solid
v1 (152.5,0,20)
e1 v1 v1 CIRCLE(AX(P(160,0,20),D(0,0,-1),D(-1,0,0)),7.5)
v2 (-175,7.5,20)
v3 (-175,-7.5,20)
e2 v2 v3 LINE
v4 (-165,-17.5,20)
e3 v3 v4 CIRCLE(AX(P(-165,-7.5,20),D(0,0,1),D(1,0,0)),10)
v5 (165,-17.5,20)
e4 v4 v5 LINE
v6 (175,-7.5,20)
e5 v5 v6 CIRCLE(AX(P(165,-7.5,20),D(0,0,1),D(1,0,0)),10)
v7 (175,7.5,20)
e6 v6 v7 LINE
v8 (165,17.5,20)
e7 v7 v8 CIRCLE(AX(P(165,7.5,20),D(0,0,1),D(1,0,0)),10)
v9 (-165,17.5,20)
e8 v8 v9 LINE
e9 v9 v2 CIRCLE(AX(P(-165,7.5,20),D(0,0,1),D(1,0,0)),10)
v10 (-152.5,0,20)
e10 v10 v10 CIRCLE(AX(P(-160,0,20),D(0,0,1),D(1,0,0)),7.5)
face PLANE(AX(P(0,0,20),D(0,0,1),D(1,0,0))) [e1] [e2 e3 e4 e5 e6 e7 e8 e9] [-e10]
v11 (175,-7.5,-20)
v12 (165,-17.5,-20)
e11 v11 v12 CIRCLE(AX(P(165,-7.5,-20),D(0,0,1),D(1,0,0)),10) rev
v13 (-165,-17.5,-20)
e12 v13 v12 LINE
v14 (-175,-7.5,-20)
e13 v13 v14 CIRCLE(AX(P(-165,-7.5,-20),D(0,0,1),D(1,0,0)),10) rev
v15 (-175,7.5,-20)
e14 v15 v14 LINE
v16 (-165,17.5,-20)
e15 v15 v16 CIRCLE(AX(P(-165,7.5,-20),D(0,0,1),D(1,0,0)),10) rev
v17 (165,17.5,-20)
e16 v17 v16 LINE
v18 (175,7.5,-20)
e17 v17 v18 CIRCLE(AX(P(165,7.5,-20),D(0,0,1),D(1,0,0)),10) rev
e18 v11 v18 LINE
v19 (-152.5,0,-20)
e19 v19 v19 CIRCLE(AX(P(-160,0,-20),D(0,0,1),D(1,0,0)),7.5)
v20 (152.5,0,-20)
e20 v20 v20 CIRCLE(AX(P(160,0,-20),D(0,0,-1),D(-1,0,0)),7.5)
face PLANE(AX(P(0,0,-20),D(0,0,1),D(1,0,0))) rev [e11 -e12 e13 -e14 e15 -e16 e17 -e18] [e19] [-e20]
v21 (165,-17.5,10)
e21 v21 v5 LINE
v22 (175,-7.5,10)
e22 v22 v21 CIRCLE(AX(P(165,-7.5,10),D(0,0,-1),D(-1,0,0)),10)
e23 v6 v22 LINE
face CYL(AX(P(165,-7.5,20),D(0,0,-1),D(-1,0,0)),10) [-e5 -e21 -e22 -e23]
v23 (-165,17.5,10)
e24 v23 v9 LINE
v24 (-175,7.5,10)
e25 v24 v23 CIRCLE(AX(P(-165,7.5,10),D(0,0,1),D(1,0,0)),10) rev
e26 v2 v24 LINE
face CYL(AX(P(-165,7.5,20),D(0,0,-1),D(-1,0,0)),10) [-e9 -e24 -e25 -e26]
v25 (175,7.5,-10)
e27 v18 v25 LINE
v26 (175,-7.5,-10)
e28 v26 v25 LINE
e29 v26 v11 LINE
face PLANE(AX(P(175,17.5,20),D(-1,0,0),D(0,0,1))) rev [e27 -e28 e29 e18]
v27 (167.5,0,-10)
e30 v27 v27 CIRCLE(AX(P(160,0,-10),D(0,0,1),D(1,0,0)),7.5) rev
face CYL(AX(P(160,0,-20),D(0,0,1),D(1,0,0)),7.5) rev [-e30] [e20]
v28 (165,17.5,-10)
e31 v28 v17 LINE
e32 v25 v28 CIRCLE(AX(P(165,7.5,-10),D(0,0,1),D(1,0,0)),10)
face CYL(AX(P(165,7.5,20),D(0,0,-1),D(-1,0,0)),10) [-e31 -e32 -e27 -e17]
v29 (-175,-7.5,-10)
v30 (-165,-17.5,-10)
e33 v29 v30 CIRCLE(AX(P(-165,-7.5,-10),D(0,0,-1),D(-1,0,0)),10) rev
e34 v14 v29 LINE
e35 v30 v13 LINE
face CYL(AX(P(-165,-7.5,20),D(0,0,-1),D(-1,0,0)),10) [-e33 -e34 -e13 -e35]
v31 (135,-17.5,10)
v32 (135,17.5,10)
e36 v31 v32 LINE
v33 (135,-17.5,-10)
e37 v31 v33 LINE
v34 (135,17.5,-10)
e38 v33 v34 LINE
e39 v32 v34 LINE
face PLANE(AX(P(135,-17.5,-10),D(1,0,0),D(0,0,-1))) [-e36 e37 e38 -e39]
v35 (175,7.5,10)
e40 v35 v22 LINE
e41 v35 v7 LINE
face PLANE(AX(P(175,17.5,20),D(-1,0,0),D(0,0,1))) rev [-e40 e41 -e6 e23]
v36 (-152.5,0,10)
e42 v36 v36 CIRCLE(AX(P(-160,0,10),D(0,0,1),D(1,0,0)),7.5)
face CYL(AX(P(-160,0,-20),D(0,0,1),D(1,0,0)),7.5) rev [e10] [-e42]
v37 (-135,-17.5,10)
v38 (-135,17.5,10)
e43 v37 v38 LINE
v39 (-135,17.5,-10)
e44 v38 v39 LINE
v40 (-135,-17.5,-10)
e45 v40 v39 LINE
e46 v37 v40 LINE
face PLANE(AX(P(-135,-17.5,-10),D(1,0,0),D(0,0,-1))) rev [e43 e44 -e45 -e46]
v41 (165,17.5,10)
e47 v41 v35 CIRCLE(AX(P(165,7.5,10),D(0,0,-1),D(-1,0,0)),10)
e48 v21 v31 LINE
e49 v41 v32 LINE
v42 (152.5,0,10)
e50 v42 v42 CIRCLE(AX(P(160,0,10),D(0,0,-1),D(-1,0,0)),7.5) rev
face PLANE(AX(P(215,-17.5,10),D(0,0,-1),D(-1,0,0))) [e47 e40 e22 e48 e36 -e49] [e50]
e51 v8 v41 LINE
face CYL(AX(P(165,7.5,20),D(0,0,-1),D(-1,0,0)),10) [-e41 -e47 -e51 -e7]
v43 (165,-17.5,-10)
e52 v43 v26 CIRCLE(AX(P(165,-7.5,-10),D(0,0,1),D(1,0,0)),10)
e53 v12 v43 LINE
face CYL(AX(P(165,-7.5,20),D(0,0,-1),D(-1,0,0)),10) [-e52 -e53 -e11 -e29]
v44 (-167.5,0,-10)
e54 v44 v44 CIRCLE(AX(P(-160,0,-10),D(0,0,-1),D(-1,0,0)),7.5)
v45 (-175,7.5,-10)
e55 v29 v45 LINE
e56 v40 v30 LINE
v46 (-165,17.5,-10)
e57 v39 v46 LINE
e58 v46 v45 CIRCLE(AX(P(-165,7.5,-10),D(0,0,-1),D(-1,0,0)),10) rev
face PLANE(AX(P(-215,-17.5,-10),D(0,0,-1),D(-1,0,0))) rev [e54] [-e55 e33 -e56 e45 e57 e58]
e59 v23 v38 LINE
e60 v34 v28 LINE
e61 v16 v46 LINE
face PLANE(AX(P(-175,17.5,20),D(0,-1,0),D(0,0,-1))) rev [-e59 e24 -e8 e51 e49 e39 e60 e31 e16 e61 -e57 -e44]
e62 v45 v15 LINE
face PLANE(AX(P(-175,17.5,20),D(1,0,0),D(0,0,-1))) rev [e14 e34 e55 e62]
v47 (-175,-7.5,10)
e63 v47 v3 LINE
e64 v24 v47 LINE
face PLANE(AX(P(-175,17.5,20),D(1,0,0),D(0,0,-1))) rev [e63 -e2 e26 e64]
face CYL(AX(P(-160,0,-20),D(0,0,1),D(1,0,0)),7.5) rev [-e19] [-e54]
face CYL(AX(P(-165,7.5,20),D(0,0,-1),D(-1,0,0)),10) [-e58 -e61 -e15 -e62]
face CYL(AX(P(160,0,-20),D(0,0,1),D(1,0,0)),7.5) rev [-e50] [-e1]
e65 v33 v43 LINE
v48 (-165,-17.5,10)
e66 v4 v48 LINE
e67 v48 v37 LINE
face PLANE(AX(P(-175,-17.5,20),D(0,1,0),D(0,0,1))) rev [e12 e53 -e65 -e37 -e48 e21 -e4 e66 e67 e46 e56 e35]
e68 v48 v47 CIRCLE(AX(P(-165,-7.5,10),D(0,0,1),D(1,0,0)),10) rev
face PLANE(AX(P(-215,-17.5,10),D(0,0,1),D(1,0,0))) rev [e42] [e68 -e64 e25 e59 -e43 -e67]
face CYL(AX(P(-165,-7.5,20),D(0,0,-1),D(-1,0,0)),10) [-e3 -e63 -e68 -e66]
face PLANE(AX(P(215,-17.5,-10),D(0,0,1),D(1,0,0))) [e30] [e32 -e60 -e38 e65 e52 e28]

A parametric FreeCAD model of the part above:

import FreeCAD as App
import Part
import Sketcher
Q = App.Units.Quantity


def edges_at(feature, points):
    """Names of the edges that pass closest to the given points."""
    edges = feature.Shape.Edges
    near = lambda p: min(range(len(edges)), key=lambda i: edges[i].distToShape(Part.Vertex(*p))[0])
    return sorted({f"Edge{near(p) + 1}" for p in points})


def add_polygon(sketch, points):
    """Adds a closed chain of lines whose ends are joined by coincident constraints."""
    first, n = sketch.GeometryCount, len(points)
    for a, b in zip(points, points[1:] + points[:1]):
        sketch.addGeometry(Part.LineSegment(App.Vector(*a, 0), App.Vector(*b, 0)), False)
    for i in range(n):
        sketch.addConstraint(Sketcher.Constraint("Coincident", first + i, 2, first + (i + 1) % n, 1))

doc = App.newDocument("Part")
body = doc.addObject("PartDesign::Body", "Body")

# Sketch on XY plane
sketch1 = body.newObject("Sketcher::SketchObject", "Sketch")
sketch1.AttachmentSupport = (doc.getObject("XY_Plane"), [""])
sketch1.MapMode = "FlatFace"
add_polygon(sketch1, [(-175, 17.5), (-175, -17.5), (175, -17.5), (175, 17.5)])  # lines 0-3
sketch1.addConstraint([
    Sketcher.Constraint("Vertical", 0),
    Sketcher.Constraint("Horizontal", 1),
    Sketcher.Constraint("Vertical", 2),
    Sketcher.Constraint("Horizontal", 3),
    Sketcher.Constraint("Symmetric", 0, 2, 2, 2, -1, 1),
    Sketcher.Constraint("DistanceX", 1, 1, 1, 2, Q("350 mm")),
    Sketcher.Constraint("DistanceY", 0, 2, 0, 1, Q("35 mm")),
])
pad1 = body.newObject("PartDesign::Pad", "Pad")
pad1.Profile = sketch1
pad1.Length = 40
pad1.Midplane = True

# Sketch on XZ plane
sketch2 = body.newObject("Sketcher::SketchObject", "Sketch001")
sketch2.AttachmentSupport = (doc.getObject("XZ_Plane"), [""])
sketch2.MapMode = "FlatFace"
add_polygon(sketch2, [(-215, -10), (-215, 10), (-135, 10), (-135, -10)])  # lines 0-3
sketch2.addConstraint([
    Sketcher.Constraint("Vertical", 0),
    Sketcher.Constraint("Horizontal", 1),
    Sketcher.Constraint("Vertical", 2),
    Sketcher.Constraint("Horizontal", 3),
    Sketcher.Constraint("DistanceX", 1, 1, 1, 2, Q("80 mm")),
    Sketcher.Constraint("DistanceY", 0, 1, 0, 2, Q("20 mm")),
    Sketcher.Constraint("DistanceX", 0, 2, -1, 1, Q("215 mm")),
    Sketcher.Constraint("DistanceY", -1, 1, 0, 2, Q("10 mm")),
])
pocket1 = body.newObject("PartDesign::Pocket", "Pocket")
pocket1.Profile = sketch2
pocket1.Length = 356.012712
pocket1.Midplane = True

# Sketch on XY plane
sketch3 = body.newObject("Sketcher::SketchObject", "Sketch002")
sketch3.AttachmentSupport = (doc.getObject("XY_Plane"), [""])
sketch3.MapMode = "FlatFace"
sketch3.addGeometry(Part.Circle(App.Vector(-160, 0, 0), App.Vector(0, 0, 1), 7.5), False)
sketch3.addConstraint([
    Sketcher.Constraint("PointOnObject", 0, 3, -1),
    Sketcher.Constraint("Diameter", 0, Q("15 mm")),
    Sketcher.Constraint("DistanceX", 0, 3, -1, 1, Q("160 mm")),
])
pocket2 = body.newObject("PartDesign::Pocket", "Pocket001")
pocket2.Profile = sketch3
pocket2.Length = 356.012712
pocket2.Midplane = True
doc.recompute()

fillet = body.newObject("PartDesign::Fillet", "Fillet")
fillet.Base = (pocket2, edges_at(pocket2, [
    (-175, -17.5, -15),
    (-175, 17.5, -15),
    (-175, -17.5, 15),
    (-175, 17.5, 15),
]))
fillet.Radius = 10
doc.recompute()

mirrored = body.newObject("PartDesign::Mirrored", "Mirrored")
mirrored.Originals = [pocket1, pocket2]
mirrored.MirrorPlane = (doc.getObject("YZ_Plane"), [""])
body.Tip = mirrored
doc.recompute()

fillet2 = body.newObject("PartDesign::Fillet", "Fillet001")
fillet2.Base = (mirrored, edges_at(mirrored, [
    (175, -17.5, -15),
    (175, 17.5, -15),
    (175, -17.5, 15),
    (175, 17.5, 15),
]))
fillet2.Radius = 10

doc.recompute()
